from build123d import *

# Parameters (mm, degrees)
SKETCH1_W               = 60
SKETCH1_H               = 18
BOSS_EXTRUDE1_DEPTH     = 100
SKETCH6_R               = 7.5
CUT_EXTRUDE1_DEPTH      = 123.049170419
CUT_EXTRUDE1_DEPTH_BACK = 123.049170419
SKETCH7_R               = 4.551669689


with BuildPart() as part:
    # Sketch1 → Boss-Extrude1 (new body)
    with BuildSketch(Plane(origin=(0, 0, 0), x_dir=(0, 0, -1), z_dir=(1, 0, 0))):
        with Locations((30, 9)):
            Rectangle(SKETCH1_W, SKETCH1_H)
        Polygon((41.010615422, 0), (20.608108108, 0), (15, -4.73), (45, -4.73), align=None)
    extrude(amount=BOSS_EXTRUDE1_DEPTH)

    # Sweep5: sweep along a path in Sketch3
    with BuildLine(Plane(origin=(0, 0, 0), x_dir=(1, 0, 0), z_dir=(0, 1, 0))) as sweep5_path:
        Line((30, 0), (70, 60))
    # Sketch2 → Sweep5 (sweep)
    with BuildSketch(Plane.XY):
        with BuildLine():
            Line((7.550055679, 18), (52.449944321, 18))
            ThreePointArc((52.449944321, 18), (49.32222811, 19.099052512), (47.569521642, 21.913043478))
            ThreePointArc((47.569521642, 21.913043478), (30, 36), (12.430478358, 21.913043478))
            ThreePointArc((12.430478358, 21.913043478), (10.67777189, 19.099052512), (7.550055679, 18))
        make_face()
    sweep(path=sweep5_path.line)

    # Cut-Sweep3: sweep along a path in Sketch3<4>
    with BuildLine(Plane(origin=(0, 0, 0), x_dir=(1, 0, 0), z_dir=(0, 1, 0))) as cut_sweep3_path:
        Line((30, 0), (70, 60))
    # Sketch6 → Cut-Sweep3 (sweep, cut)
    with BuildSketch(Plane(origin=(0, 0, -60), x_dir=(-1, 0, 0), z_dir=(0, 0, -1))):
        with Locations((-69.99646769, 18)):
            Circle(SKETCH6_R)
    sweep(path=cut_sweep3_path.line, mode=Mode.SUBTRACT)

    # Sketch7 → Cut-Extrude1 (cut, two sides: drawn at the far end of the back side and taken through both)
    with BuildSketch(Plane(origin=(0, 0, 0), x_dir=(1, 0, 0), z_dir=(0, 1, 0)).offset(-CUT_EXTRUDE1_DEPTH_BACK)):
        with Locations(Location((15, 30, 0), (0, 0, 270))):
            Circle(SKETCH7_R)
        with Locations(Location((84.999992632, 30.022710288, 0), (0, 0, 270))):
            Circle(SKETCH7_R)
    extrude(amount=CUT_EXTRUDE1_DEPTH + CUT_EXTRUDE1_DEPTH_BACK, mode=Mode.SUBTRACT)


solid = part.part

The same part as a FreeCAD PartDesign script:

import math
import FreeCAD as App
import Part
import Sketcher
Q = App.Units.Quantity

doc = App.newDocument("Part")
body = doc.addObject("PartDesign::Body", "Body")

sketch1 = body.newObject("Sketcher::SketchObject", "Sketch")
sketch1.AttachmentSupport = (doc.getObject("YZ_Plane"), [""])
sketch1.MapMode = "FlatFace"
sketch1.addGeometry([
    Part.LineSegment(App.Vector(18, 0, 0), App.Vector(0, 0, 0)),
    Part.LineSegment(App.Vector(0, 0, 0), App.Vector(0, -21, 0)),
    Part.LineSegment(App.Vector(0, -21, 0), App.Vector(-5, -15, 0)),
    Part.LineSegment(App.Vector(-5, -15, 0), App.Vector(-5, -45, 0)),
    Part.LineSegment(App.Vector(-5, -45, 0), App.Vector(0, -41, 0)),
    Part.LineSegment(App.Vector(0, -41, 0), App.Vector(0, -60, 0)),
    Part.LineSegment(App.Vector(0, -60, 0), App.Vector(18, -60, 0)),
    Part.LineSegment(App.Vector(18, -60, 0), App.Vector(18, 0, 0)),
], False)
sketch1.addConstraint([
    Sketcher.Constraint("Coincident", 0, 2, 1, 1),
    Sketcher.Constraint("Coincident", 1, 2, 2, 1),
    Sketcher.Constraint("Coincident", 2, 2, 3, 1),
    Sketcher.Constraint("Coincident", 3, 2, 4, 1),
    Sketcher.Constraint("Coincident", 4, 2, 5, 1),
    Sketcher.Constraint("Coincident", 5, 2, 6, 1),
    Sketcher.Constraint("Coincident", 6, 2, 7, 1),
    Sketcher.Constraint("Coincident", 7, 2, 0, 1),
    Sketcher.Constraint("Horizontal", 0),
    Sketcher.Constraint("Vertical", 1),
    Sketcher.Constraint("Vertical", 3),
    Sketcher.Constraint("Vertical", 5),
    Sketcher.Constraint("Horizontal", 6),
    Sketcher.Constraint("Vertical", 7),
    Sketcher.Constraint("Coincident", 0, 2, -1, 1),
    Sketcher.Constraint("PointOnObject", 4, 2, -2),
    Sketcher.Constraint("Perpendicular", 2, 4),
    Sketcher.Constraint("DistanceX", 0, 2, 0, 1, Q("18 mm")),
    Sketcher.Constraint("DistanceY", 3, 2, 3, 1, Q("30 mm")),
    Sketcher.Constraint("DistanceY", 7, 1, 7, 2, Q("60 mm")),
    Sketcher.Constraint("DistanceY", 2, 2, -1, 1, Q("15 mm")),
    Sketcher.Constraint("DistanceX", 2, 2, -1, 1, Q("4.73 mm")),
    Sketcher.Constraint("DistanceY", 1, 2, 1, 1, Q("20.608108 mm")),
])
pad1 = body.newObject("PartDesign::Pad", "Pad")
pad1.Profile = sketch1
pad1.Length = 100

sketch2 = body.newObject("Sketcher::SketchObject", "Sketch001")
sketch2.AttachmentSupport = (doc.getObject("XY_Plane"), [""])
sketch2.MapMode = "FlatFace"
sketch2.addGeometry([
    Part.LineSegment(App.Vector(8, 18, 0), App.Vector(52, 18, 0)),
    Part.ArcOfCircle(Part.Circle(App.Vector(52, 23, 0), App.Vector(0, 0, 1), 5), math.radians(-167), math.radians(-90)),
    Part.ArcOfCircle(Part.Circle(App.Vector(30, 18, 0), App.Vector(0, 0, 1), 18), math.radians(13), math.radians(167)),
    Part.ArcOfCircle(Part.Circle(App.Vector(8, 23, 0), App.Vector(0, 0, 1), 5), math.radians(-90), math.radians(-13)),
], False)
sketch2.addConstraint([
    Sketcher.Constraint("Tangent", 0, 2, 1, 2),
    Sketcher.Constraint("Tangent", 1, 1, 2, 1),
    Sketcher.Constraint("Tangent", 2, 2, 3, 2),
    Sketcher.Constraint("Tangent", 3, 1, 0, 1),
    Sketcher.Constraint("Horizontal", 0),
    Sketcher.Constraint("Equal", 1, 3),
    Sketcher.Constraint("Horizontal", 2, 3, 0, 2),
    Sketcher.Constraint("Radius", 1, Q("5 mm")),
    Sketcher.Constraint("Radius", 2, Q("18 mm")),
    Sketcher.Constraint("DistanceY", -1, 1, 1, 3, Q("23 mm")),
    Sketcher.Constraint("DistanceX", -1, 1, 2, 3, Q("30 mm")),
])

sketch3 = body.newObject("Sketcher::SketchObject", "Sketch002")
sketch3.Placement = App.Placement(App.Vector(20.769231, 0, 13.846154), App.Rotation(App.Vector(0.554700196, 0, -0.832050294), App.Vector(0, 0.999999999, 0), App.Vector(0.832050294, 0, 0.554700196), "ZXY"))
sketch3.addGeometry(Part.LineSegment(App.Vector(17, 0, 0), App.Vector(89, 0, 0)), False)
sketch3.addConstraint([
    Sketcher.Constraint("Horizontal", 0),
    Sketcher.Constraint("PointOnObject", 0, 1, -1),
    Sketcher.Constraint("DistanceX", 0, 1, 0, 2, Q("72.111025 mm")),
    Sketcher.Constraint("DistanceX", -1, 1, 0, 2, Q("88.752031 mm")),
])
doc.recompute()

additivepipe = body.newObject("PartDesign::AdditivePipe", "AdditivePipe")
additivepipe.Profile = sketch2
additivepipe.Spine = (sketch3, ["Edge1"])

sketch4 = body.newObject("Sketcher::SketchObject", "Sketch003")
sketch4.AttachmentSupport = (doc.getObject("XY_Plane"), [""])
sketch4.MapMode = "FlatFace"
sketch4.AttachmentOffset = App.Placement(App.Vector(0, 0, -60), App.Rotation())
sketch4.addGeometry(Part.Circle(App.Vector(70, 18, 0), App.Vector(0, 0, 1), 8), False)
sketch4.addConstraint([
    Sketcher.Constraint("Diameter", 0, Q("15 mm")),
    Sketcher.Constraint("DistanceY", -1, 1, 0, 3, Q("18 mm")),
    Sketcher.Constraint("DistanceX", -1, 1, 0, 3, Q("69.996468 mm")),
])

sketch5 = body.newObject("Sketcher::SketchObject", "Sketch004")
sketch5.Placement = App.Placement(App.Vector(20.769231, 0, 13.846154), App.Rotation(App.Vector(0.554700196, 0, -0.832050294), App.Vector(0, 0.999999999, 0), App.Vector(0.832050294, 0, 0.554700196), "ZXY"))
sketch5.addGeometry(Part.LineSegment(App.Vector(17, 0, 0), App.Vector(89, 0, 0)), False)
sketch5.addConstraint([
    Sketcher.Constraint("Horizontal", 0),
    Sketcher.Constraint("PointOnObject", 0, 1, -1),
    Sketcher.Constraint("DistanceX", 0, 1, 0, 2, Q("72.111025 mm")),
    Sketcher.Constraint("DistanceX", -1, 1, 0, 2, Q("88.752031 mm")),
])
doc.recompute()

subtractivepipe = body.newObject("PartDesign::SubtractivePipe", "SubtractivePipe")
subtractivepipe.Profile = sketch4
subtractivepipe.Spine = (sketch5, ["Edge1"])

sketch6 = body.newObject("Sketcher::SketchObject", "Sketch005")
sketch6.AttachmentSupport = (doc.getObject("XZ_Plane"), [""])
sketch6.MapMode = "FlatFace"
sketch6.addGeometry([
    Part.Circle(App.Vector(15, -30, 0), App.Vector(0, 0, 1), 4.6),
    Part.Circle(App.Vector(85, -30, 0), App.Vector(0, 0, 1), 4.6),
], False)
sketch6.addConstraint([
    Sketcher.Constraint("Equal", 0, 1),
    Sketcher.Constraint("DistanceX", -1, 1, 0, 3, Q("15 mm")),
    Sketcher.Constraint("DistanceY", 0, 3, -1, 1, Q("30 mm")),
    Sketcher.Constraint("Diameter", 0, Q("9.103339 mm")),
    Sketcher.Constraint("DistanceY", 1, 3, -1, 1, Q("30.02271 mm")),
    Sketcher.Constraint("DistanceX", -1, 1, 1, 3, Q("84.999993 mm")),
])
pocket1 = body.newObject("PartDesign::Pocket", "Pocket")
pocket1.Profile = sketch6
pocket1.Type = "ThroughAll"
pocket1.Midplane = True

doc.recompute()
